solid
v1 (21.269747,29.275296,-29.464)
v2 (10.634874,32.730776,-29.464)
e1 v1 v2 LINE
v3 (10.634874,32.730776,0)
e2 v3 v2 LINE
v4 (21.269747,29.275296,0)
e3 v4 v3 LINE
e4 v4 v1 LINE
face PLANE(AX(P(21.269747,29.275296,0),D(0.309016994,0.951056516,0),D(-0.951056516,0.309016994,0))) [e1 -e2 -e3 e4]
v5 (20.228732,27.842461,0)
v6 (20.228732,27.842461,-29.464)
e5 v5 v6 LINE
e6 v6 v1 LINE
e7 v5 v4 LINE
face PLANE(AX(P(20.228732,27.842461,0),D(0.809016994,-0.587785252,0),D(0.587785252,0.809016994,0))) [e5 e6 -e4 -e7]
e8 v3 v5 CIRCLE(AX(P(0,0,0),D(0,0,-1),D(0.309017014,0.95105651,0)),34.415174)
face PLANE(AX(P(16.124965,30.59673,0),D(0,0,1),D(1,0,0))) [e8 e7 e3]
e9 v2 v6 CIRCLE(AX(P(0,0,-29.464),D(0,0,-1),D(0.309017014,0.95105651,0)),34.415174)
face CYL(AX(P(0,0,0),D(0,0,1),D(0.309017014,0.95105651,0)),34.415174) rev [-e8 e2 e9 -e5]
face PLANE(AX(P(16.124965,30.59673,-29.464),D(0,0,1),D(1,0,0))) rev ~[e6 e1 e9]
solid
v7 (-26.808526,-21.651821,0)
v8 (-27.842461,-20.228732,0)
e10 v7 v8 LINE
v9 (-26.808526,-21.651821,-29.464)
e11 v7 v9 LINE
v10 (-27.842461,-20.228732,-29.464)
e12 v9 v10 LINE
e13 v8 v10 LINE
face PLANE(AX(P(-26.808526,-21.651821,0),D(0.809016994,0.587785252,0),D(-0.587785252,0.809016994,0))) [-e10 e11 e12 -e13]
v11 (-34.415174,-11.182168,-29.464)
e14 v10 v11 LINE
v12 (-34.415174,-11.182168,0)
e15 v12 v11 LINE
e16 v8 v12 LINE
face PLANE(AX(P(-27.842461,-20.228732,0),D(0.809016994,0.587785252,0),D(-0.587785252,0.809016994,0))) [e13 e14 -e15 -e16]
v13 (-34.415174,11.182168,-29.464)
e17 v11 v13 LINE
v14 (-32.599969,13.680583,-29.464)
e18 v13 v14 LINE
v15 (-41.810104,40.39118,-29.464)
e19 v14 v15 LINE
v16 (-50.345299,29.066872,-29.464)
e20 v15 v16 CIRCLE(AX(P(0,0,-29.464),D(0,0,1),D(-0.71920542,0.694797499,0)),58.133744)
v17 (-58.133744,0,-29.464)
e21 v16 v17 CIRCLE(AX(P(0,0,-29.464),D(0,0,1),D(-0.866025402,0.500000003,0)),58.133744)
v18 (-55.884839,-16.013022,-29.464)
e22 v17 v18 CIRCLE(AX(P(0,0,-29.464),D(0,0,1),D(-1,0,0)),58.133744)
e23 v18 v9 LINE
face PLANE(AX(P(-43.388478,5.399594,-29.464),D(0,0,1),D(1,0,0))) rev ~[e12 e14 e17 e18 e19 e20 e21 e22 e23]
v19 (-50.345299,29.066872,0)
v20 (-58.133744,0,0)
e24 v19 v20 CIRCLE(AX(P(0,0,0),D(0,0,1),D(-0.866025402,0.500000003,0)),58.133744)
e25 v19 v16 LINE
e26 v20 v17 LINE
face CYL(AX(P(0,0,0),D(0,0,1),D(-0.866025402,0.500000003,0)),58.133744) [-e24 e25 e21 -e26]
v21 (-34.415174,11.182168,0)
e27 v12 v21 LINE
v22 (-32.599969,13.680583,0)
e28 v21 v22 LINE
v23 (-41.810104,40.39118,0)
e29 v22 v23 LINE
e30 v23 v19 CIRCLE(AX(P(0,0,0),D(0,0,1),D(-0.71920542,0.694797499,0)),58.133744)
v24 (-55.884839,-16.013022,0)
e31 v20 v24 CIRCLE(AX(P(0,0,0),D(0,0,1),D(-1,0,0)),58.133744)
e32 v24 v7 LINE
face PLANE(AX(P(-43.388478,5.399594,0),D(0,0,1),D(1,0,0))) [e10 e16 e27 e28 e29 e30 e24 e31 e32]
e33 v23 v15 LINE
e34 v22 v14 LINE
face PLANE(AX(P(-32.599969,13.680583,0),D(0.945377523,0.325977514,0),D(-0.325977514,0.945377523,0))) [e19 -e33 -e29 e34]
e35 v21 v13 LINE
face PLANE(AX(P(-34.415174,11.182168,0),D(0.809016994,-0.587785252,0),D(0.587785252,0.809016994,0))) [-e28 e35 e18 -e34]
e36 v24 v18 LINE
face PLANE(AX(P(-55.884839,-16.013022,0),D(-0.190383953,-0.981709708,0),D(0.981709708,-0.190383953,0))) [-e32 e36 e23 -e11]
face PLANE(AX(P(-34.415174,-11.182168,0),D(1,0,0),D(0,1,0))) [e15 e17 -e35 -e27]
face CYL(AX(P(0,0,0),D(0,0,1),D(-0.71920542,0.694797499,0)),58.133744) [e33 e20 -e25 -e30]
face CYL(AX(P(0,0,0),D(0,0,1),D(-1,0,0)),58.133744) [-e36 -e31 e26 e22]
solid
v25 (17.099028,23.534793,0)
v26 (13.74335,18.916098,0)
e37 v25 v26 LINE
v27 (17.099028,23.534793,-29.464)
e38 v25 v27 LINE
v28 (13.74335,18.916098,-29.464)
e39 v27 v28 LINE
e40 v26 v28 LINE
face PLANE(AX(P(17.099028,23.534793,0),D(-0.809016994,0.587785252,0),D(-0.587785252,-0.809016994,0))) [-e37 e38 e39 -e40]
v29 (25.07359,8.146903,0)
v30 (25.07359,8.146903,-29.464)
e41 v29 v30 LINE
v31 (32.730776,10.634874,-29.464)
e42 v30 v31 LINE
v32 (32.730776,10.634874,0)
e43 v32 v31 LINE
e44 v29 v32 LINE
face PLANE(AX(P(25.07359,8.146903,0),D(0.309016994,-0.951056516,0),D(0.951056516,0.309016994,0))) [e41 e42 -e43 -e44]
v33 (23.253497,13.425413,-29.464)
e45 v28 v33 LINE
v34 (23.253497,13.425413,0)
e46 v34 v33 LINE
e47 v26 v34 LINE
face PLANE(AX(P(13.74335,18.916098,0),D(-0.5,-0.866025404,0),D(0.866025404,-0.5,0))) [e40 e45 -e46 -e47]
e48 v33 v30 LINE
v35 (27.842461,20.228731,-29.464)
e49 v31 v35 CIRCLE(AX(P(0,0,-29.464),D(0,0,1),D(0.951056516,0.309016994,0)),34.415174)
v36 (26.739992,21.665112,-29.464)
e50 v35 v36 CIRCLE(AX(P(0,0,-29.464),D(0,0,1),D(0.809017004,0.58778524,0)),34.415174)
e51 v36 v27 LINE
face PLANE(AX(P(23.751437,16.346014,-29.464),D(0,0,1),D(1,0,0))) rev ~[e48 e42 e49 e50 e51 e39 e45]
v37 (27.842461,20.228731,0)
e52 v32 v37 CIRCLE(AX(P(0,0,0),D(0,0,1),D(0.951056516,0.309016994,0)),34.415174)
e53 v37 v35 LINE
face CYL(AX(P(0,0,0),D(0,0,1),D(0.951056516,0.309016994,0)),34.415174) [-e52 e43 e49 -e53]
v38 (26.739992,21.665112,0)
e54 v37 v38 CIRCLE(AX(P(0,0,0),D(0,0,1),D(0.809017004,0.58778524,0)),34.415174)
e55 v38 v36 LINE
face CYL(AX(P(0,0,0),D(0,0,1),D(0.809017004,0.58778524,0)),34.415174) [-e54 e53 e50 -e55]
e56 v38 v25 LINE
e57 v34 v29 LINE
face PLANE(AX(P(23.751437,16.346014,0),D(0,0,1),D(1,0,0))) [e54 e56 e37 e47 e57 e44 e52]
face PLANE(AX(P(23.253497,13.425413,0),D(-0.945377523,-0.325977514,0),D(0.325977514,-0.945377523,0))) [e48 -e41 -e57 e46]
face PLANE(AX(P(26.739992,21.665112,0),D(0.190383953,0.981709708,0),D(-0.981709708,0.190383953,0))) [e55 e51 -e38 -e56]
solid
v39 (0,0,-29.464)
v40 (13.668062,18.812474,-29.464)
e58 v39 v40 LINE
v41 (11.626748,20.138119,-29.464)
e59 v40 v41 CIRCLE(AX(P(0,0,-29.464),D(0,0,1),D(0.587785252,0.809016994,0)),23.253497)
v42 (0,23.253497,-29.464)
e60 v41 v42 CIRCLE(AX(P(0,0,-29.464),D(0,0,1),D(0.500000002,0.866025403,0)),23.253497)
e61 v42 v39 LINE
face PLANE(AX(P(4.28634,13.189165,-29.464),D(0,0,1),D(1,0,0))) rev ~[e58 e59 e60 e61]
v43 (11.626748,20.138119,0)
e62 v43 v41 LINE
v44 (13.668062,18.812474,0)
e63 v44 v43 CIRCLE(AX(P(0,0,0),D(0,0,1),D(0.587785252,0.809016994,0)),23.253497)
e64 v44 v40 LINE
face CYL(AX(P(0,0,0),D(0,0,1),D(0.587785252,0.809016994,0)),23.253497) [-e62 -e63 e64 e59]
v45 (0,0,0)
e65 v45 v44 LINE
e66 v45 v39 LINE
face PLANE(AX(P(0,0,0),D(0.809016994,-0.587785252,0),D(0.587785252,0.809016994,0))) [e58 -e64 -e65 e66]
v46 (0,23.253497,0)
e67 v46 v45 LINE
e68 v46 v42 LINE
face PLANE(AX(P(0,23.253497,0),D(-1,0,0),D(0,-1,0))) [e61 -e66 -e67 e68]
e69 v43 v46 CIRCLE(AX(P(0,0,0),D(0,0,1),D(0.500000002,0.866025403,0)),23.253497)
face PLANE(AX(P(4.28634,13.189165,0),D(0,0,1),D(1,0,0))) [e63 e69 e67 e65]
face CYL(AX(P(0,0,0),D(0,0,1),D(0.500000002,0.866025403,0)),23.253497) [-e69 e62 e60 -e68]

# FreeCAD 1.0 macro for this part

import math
import FreeCAD as App
import Part
import Sketcher
from FreeCAD import Vector
Q = App.Units.Quantity

doc = App.newDocument("Part")
body = doc.addObject("PartDesign::Body", "Body")

sketch1 = body.newObject("Sketcher::SketchObject", "Sketch")
sketch1.AttachmentSupport = (doc.getObject("XY_Plane"), [""])
sketch1.MapMode = "FlatFace"
sketch1.addGeometry([
    Part.LineSegment(Vector(-27.842461, -20.228732, 0), Vector(-34.415174, -11.182168, 0)),
    Part.LineSegment(Vector(-34.415174, -11.182168, 0), Vector(-34.415174, 11.182168, 0)),
    Part.LineSegment(Vector(-34.415174, 11.182168, 0), Vector(-32.599969, 13.680583, 0)),
    Part.LineSegment(Vector(-32.599969, 13.680583, 0), Vector(-41.810104, 40.39118, 0)),
    Part.ArcOfCircle(Part.Circle(Vector(0, 0, 0), Vector(0, 0, 1), 58.133744), math.radians(135.988917), math.radians(150)),
    Part.ArcOfCircle(Part.Circle(Vector(0, 0, 0), Vector(0, 0, 1), 58.133744), math.radians(150), math.radians(180)),
    Part.ArcOfCircle(Part.Circle(Vector(0, 0, 0), Vector(0, 0, 1), 58.133744), math.radians(180), math.radians(195.988917)),
    Part.LineSegment(Vector(-55.884839, -16.013022, 0), Vector(-26.808526, -21.651821, 0)),
    Part.LineSegment(Vector(-26.808526, -21.651821, 0), Vector(-27.842461, -20.228732, 0)),
], False)
sketch1.addConstraint([
    Sketcher.Constraint("Coincident", 0, 2, 1, 1),
    Sketcher.Constraint("Coincident", 1, 2, 2, 1),
    Sketcher.Constraint("Coincident", 2, 2, 3, 1),
    Sketcher.Constraint("Coincident", 3, 2, 4, 1),
    Sketcher.Constraint("Tangent", 4, 2, 5, 1),
    Sketcher.Constraint("Tangent", 5, 2, 6, 1),
    Sketcher.Constraint("Coincident", 6, 2, 7, 1),
    Sketcher.Constraint("Coincident", 7, 2, 8, 1),
    Sketcher.Constraint("Coincident", 8, 2, 0, 1),
    Sketcher.Constraint("Vertical", 1),
    Sketcher.Constraint("Coincident", 4, 3, -1, 1),
    Sketcher.Constraint("Coincident", 6, 3, -1, 1),
    Sketcher.Constraint("PointOnObject", 5, 2, -1),
    Sketcher.Constraint("Parallel", 0, 8),
    Sketcher.Constraint("Angle", 0, Q("126 deg")),
    Sketcher.Constraint("Angle", 2, Q("54 deg")),
    Sketcher.Constraint("DistanceY", 7, 2, 6, 2, Q("0.2219999 in")),
    Sketcher.Constraint("Radius", 4, 58.133744),
    Sketcher.Constraint("DistanceX", 4, 2, -1, 1, 50.345299),
    Sketcher.Constraint("DistanceY", 8, 2, 1, 2, 31.4109),
    Sketcher.Constraint("Distance", 2, 3.088211),
    Sketcher.Constraint("DistanceY", 1, 1, 1, 2, 22.364336),
    Sketcher.Constraint("DistanceX", 2, 2, -1, 1, 32.599969),
    Sketcher.Constraint("DistanceY", -1, 1, 3, 2, 40.39118),
    Sketcher.Constraint("DistanceX", 6, 2, -1, 1, 55.884839),
    Sketcher.Constraint("DistanceY", 8, 2, -1, 1, 20.228732),
])
pad1 = body.newObject("PartDesign::Pad", "Pad")
pad1.Profile = sketch1
pad1.Length = Q("1.16 in")
pad1.Reversed = True
body2 = doc.addObject("PartDesign::Body", "Body001")

sketch2 = body2.newObject("Sketcher::SketchObject", "Sketch001")
sketch2.AttachmentSupport = (doc.getObject("XY_Plane001"), [""])
sketch2.MapMode = "FlatFace"
sketch2.addGeometry([
    Part.LineSegment(Vector(0, 23.253497, 0), Vector(0, 0, 0)),
    Part.LineSegment(Vector(0, 0, 0), Vector(13.668062, 18.812474, 0)),
    Part.ArcOfCircle(Part.Circle(Vector(0, 0, 0), Vector(0, 0, 1), 23.253497), math.radians(54), math.radians(60)),
    Part.ArcOfCircle(Part.Circle(Vector(0, 0, 0), Vector(0, 0, 1), 23.253497), math.radians(60), math.radians(90)),
], False)
sketch2.addConstraint([
    Sketcher.Constraint("Coincident", 0, 2, 1, 1),
    Sketcher.Constraint("Coincident", 1, 2, 2, 1),
    Sketcher.Constraint("Tangent", 2, 2, 3, 1),
    Sketcher.Constraint("Coincident", 3, 2, 0, 1),
    Sketcher.Constraint("Vertical", 0),
    Sketcher.Constraint("Coincident", 2, 3, -1, 1),
    Sketcher.Constraint("Coincident", 0, 2, -1, 1),
    Sketcher.Constraint("Equal", 2, 3),
    Sketcher.Constraint("Angle", 1, Q("54 deg")),
    Sketcher.Constraint("Radius", 2, 23.253497),
    Sketcher.Constraint("DistanceX", -1, 1, 2, 2, 11.626748),
])
pad2 = body2.newObject("PartDesign::Pad", "Pad001")
pad2.Profile = sketch2
pad2.Length = Q("1.16 in")
pad2.Reversed = True
body3 = doc.addObject("PartDesign::Body", "Body002")

sketch3 = body3.newObject("Sketcher::SketchObject", "Sketch002")
sketch3.AttachmentSupport = (doc.getObject("XY_Plane002"), [""])
sketch3.MapMode = "FlatFace"
sketch3.addGeometry([
    Part.LineSegment(Vector(17.099028, 23.534793, 0), Vector(13.74335, 18.916098, 0)),
    Part.LineSegment(Vector(13.74335, 18.916098, 0), Vector(23.253497, 13.425413, 0)),
    Part.LineSegment(Vector(23.253497, 13.425413, 0), Vector(25.07359, 8.146903, 0)),
    Part.LineSegment(Vector(25.07359, 8.146903, 0), Vector(32.730776, 10.634874, 0)),
    Part.ArcOfCircle(Part.Circle(Vector(0, 0, 0), Vector(0, 0, 1), 34.415174), math.radians(18), math.radians(35.999999)),
    Part.ArcOfCircle(Part.Circle(Vector(0, 0, 0), Vector(0, 0, 1), 34.415174), math.radians(35.999999), math.radians(39.01487)),
    Part.LineSegment(Vector(26.739992, 21.665112, 0), Vector(17.099028, 23.534793, 0)),
], False)
sketch3.addConstraint([
    Sketcher.Constraint("Coincident", 0, 2, 1, 1),
    Sketcher.Constraint("Coincident", 1, 2, 2, 1),
    Sketcher.Constraint("Coincident", 2, 2, 3, 1),
    Sketcher.Constraint("Coincident", 3, 2, 4, 1),
    Sketcher.Constraint("Tangent", 4, 2, 5, 1),
    Sketcher.Constraint("Coincident", 5, 2, 6, 1),
    Sketcher.Constraint("Coincident", 6, 2, 0, 1),
    Sketcher.Constraint("Coincident", 4, 3, -1, 1),
    Sketcher.Constraint("Equal", 4, 5),
    Sketcher.Constraint("Angle", 0, Q("-126 deg")),
    Sketcher.Constraint("Angle", 1, Q("-30 deg")),
    Sketcher.Constraint("Angle", 3, Q("18 deg")),
    Sketcher.Constraint("Radius", 4, 34.415174),
    Sketcher.Constraint("DistanceY", -1, 1, 0, 2, 18.916098),
    Sketcher.Constraint("DistanceY", 1, 2, 5, 2, 8.239699),
    Sketcher.Constraint("DistanceX", 2, 2, 5, 2, 1.666402),
    Sketcher.Constraint("Distance", 0, 5.709021),
    Sketcher.Constraint("Distance", 1, 10.981372),
    Sketcher.Constraint("Distance", 3, 8.051241),
    Sketcher.Constraint("DistanceX", -1, 1, 0, 2, 13.74335),
    Sketcher.Constraint("DistanceX", -1, 1, 4, 2, 27.842461),
])
pad3 = body3.newObject("PartDesign::Pad", "Pad002")
pad3.Profile = sketch3
pad3.Length = Q("1.16 in")
pad3.Reversed = True
body4 = doc.addObject("PartDesign::Body", "Body003")

sketch4 = body4.newObject("Sketcher::SketchObject", "Sketch003")
sketch4.AttachmentSupport = (doc.getObject("XY_Plane003"), [""])
sketch4.MapMode = "FlatFace"
sketch4.addGeometry([
    Part.ArcOfCircle(Part.Circle(Vector(0, 0, 0), Vector(0, 0, 1), 34.415174), math.radians(54), math.radians(71.999999)),
    Part.LineSegment(Vector(20.228732, 27.842461, 0), Vector(21.269747, 29.275296, 0)),
    Part.LineSegment(Vector(21.269747, 29.275296, 0), Vector(10.634874, 32.730776, 0)),
], False)
sketch4.addConstraint([
    Sketcher.Constraint("Coincident", 0, 1, 1, 1),
    Sketcher.Constraint("Coincident", 1, 2, 2, 1),
    Sketcher.Constraint("Tangent", 2, 2, 0, 2),
    Sketcher.Constraint("Coincident", 0, 3, -1, 1),
    Sketcher.Constraint("Angle", 1, Q("54 deg")),
    Sketcher.Constraint("Angle", 2, Q("162 deg")),
    Sketcher.Constraint("Radius", 0, 34.415174),
    Sketcher.Constraint("Distance", 1, 1.771081),
])
pad4 = body4.newObject("PartDesign::Pad", "Pad003")
pad4.Profile = sketch4
pad4.Length = Q("1.16 in")
pad4.Reversed = True

doc.recompute()
